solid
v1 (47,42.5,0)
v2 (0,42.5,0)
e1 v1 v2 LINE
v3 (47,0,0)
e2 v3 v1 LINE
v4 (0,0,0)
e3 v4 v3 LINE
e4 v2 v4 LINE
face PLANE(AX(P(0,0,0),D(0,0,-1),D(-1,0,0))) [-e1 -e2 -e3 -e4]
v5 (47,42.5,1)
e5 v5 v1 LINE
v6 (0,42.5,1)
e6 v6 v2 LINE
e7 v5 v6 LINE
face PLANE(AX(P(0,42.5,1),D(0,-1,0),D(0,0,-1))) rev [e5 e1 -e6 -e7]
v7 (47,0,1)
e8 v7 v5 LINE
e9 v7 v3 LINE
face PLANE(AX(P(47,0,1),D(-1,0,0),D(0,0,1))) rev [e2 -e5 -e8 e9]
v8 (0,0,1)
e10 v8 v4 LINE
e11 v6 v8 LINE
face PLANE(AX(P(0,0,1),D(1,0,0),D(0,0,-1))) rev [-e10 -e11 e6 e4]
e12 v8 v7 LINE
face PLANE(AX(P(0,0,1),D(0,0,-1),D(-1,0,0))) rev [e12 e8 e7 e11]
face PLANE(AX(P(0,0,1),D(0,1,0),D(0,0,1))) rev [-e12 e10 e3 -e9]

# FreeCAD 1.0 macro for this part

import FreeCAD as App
import Part
import Sketcher

V = App.Vector

doc = App.newDocument("Part")
body = doc.addObject("PartDesign::Body", "Body")

# Sketch on XY plane
sketch1 = body.newObject("Sketcher::SketchObject", "Sketch")
sketch1.AttachmentSupport = (doc.getObject("XY_Plane"), [""])
sketch1.MapMode = "FlatFace"
sketch1.addGeometry([
    Part.LineSegment(V(0, 42, 0), V(0, 0, 0)),
    Part.LineSegment(V(0, 0, 0), V(47, 0, 0)),
    Part.LineSegment(V(47, 0, 0), V(47, 42, 0)),
    Part.LineSegment(V(47, 42, 0), V(0, 42, 0)),
], False)
sketch1.addConstraint([
    Sketcher.Constraint("Coincident", 0, 2, 1, 1),
    Sketcher.Constraint("Coincident", 1, 2, 2, 1),
    Sketcher.Constraint("Coincident", 2, 2, 3, 1),
    Sketcher.Constraint("Coincident", 3, 2, 0, 1),
    Sketcher.Constraint("Vertical", 0),
    Sketcher.Constraint("Horizontal", 1),
    Sketcher.Constraint("Vertical", 2),
    Sketcher.Constraint("Horizontal", 3),
    Sketcher.Constraint("Coincident", 0, 2, -1, 1),
    Sketcher.Constraint("DistanceX", 1, 1, 1, 2, 47.0),
    Sketcher.Constraint("DistanceY", 0, 2, 0, 1, 42.5),
])
pad1 = body.newObject("PartDesign::Pad", "Pad")
pad1.Profile = sketch1
pad1.Length = 1

doc.recompute()
